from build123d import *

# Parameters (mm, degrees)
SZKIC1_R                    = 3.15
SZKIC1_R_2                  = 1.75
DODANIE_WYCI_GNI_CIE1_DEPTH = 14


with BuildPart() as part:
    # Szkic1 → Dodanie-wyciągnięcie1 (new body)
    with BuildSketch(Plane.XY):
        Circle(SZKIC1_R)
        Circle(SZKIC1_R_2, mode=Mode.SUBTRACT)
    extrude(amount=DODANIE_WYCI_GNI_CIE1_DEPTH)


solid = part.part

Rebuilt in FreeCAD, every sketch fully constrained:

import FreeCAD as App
import Part
import Sketcher
Q = App.Units.Quantity

doc = App.newDocument("Part")
body = doc.addObject("PartDesign::Body", "Body")

sketch1 = doc.addObject("Sketcher::SketchObject", "Sketch")
body.addObject(sketch1)
sketch1.AttachmentSupport = (doc.XY_Plane, [""])
sketch1.MapMode = "FlatFace"
sketch1.addGeometry([
    Part.Circle(App.Vector(0, 0, 0), App.Vector(0, 0, 1), 3.1),
    Part.Circle(App.Vector(0, 0, 0), App.Vector(0, 0, 1), 1.8),
], False)
sketch1.addConstraint([
    Sketcher.Constraint("Coincident", 0, 3, -1, 1),
    Sketcher.Constraint("Coincident", 1, 3, -1, 1),
    Sketcher.Constraint("Diameter", 0, Q("6.3 mm")),
    Sketcher.Constraint("Diameter", 1, Q("3.5 mm")),
])
pad1 = doc.addObject("PartDesign::Pad", "Pad")
body.addObject(pad1)
pad1.Profile = sketch1
pad1.Length = 14

doc.recompute()
